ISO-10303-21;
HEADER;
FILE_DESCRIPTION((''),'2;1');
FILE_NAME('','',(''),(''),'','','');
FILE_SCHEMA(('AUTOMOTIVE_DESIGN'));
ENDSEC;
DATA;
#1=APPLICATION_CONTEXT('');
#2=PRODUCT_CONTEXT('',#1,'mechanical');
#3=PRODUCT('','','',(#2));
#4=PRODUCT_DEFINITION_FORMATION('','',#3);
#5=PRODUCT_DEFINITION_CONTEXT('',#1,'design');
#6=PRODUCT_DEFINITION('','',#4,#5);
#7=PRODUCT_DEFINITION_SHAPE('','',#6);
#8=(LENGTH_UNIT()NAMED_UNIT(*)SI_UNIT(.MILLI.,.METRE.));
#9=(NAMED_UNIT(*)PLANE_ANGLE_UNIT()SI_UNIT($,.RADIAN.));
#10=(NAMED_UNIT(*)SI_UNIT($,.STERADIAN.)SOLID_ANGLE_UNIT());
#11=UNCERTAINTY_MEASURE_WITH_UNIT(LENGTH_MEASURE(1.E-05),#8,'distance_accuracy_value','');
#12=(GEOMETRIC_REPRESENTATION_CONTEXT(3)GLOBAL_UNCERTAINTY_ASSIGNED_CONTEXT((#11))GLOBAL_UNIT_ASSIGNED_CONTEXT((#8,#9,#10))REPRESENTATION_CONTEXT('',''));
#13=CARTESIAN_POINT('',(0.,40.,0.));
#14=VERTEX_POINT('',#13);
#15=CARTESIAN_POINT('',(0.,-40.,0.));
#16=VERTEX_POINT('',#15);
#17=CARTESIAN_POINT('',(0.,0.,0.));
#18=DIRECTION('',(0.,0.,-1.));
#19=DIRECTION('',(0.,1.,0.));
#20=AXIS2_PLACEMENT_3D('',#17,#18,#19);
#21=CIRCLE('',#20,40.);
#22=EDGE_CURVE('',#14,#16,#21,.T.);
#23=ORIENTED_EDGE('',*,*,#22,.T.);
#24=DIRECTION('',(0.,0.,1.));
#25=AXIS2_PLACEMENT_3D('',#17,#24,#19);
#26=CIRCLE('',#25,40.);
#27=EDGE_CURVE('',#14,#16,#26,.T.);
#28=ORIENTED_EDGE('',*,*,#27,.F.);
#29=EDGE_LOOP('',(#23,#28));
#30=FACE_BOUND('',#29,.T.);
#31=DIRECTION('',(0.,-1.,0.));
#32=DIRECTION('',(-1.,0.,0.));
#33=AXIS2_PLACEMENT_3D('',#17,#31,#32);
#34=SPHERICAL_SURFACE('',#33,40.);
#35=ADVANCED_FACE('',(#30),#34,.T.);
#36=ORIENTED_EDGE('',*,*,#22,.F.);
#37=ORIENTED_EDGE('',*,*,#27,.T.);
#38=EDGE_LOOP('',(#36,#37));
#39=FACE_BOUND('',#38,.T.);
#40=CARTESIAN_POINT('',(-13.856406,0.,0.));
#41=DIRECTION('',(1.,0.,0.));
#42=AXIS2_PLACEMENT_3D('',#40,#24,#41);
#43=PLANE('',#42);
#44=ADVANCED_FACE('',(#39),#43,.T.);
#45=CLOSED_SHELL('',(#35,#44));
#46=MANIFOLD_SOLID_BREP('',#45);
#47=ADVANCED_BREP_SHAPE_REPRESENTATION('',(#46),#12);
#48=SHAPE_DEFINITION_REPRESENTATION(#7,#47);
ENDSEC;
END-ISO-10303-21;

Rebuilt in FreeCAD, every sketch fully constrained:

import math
import FreeCAD as App
import Part
import Sketcher

V = App.Vector

doc = App.newDocument("Part")
body = doc.addObject("PartDesign::Body", "Body")

# Sketch on XY plane
sketch1 = body.newObject("Sketcher::SketchObject", "Sketch")
sketch1.AttachmentSupport = (doc.getObject("XY_Plane"), [""])
sketch1.MapMode = "FlatFace"
sketch1.addGeometry(Part.ArcOfCircle(Part.Circle(V(0, 0, 0), V(0, 0, 1), 40), math.radians(90), math.radians(270)), False)
sketch1.addGeometry(Part.LineSegment(V(0, -40, 0), V(0, 40, 0)), False)
sketch1.addConstraint(Sketcher.Constraint("Coincident", 0, 1, 1, 2))
sketch1.addConstraint(Sketcher.Constraint("Coincident", 1, 1, 0, 2))
sketch1.addConstraint(Sketcher.Constraint("Vertical", 1))
sketch1.addConstraint(Sketcher.Constraint("Coincident", 0, 3, -1, 1))
sketch1.addConstraint(Sketcher.Constraint("PointOnObject", 0, 1, -2))
sketch1.addConstraint(Sketcher.Constraint("Radius", 0, 40.0))
revolution = body.newObject("PartDesign::Revolution", "Revolution")
revolution.Profile = sketch1
revolution.ReferenceAxis = (sketch1, ["V_Axis"])
revolution.Angle = 180
revolution.Reversed = True

doc.recompute()
